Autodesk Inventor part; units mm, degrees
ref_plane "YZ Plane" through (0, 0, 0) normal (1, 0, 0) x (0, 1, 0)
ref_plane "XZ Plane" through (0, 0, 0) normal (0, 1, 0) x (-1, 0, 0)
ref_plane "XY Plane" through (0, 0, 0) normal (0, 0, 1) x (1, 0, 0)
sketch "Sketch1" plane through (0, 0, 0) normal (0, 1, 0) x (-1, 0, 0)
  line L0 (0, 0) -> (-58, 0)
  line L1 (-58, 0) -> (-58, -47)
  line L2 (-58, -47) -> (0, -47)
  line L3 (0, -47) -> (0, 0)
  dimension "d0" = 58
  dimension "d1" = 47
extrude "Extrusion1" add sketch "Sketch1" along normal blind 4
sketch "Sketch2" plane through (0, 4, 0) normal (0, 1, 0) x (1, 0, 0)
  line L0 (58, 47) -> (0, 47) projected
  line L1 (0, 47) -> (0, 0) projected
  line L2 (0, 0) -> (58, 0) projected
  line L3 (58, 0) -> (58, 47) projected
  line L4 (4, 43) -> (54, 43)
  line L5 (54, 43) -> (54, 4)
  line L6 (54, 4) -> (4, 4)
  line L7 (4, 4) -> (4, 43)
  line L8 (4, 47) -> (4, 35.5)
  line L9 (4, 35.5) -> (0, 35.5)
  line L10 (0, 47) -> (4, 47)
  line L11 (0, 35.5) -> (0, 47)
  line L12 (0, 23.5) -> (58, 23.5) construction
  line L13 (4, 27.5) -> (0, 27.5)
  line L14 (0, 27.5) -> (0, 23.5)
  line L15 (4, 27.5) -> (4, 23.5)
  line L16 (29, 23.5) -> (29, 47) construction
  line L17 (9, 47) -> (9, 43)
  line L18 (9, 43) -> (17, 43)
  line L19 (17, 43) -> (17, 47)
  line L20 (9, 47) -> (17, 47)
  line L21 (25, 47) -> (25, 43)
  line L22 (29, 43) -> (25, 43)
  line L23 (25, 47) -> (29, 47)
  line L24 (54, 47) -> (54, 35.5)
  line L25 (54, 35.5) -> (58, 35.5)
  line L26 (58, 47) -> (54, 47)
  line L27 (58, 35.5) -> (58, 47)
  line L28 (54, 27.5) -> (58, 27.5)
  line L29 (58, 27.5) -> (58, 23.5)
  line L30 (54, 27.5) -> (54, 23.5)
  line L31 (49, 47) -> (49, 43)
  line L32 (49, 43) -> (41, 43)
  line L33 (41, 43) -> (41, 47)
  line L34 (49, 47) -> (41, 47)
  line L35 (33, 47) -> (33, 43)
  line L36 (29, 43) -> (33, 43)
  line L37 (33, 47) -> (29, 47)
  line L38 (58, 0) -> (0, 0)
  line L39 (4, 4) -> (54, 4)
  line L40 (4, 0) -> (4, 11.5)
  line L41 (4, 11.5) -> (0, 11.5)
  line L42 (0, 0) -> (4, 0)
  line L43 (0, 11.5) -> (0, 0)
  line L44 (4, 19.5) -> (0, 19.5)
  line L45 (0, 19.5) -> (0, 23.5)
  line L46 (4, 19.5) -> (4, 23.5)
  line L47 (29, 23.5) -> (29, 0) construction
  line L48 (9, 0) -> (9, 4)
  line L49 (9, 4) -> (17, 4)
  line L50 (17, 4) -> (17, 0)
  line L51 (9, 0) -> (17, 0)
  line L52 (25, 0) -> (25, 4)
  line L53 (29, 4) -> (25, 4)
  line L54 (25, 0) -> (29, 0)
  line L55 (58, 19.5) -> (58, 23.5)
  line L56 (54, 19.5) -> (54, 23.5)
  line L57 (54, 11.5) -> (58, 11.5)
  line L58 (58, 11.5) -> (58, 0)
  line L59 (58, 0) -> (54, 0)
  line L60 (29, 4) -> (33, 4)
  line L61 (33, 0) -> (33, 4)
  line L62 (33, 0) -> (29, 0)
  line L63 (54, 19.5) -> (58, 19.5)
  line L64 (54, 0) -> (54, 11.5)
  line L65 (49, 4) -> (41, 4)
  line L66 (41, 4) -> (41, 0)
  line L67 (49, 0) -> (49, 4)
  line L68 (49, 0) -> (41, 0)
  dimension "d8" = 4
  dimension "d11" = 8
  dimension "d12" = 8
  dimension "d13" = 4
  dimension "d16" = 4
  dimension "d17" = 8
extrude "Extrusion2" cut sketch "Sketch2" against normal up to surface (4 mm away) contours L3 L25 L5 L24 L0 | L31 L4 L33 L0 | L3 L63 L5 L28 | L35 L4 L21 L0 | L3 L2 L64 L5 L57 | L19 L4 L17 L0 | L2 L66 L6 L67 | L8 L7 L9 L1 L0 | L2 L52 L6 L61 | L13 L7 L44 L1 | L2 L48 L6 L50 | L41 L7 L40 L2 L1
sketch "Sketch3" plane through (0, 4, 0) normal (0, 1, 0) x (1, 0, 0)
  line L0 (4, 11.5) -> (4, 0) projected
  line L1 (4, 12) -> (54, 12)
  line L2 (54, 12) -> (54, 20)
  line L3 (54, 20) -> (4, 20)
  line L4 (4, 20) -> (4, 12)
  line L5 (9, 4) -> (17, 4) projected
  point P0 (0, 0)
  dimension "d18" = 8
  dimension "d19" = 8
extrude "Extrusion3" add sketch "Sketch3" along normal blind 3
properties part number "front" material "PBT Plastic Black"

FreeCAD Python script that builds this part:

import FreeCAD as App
import Part
import Sketcher

V = App.Vector
Q = App.Units.Quantity

doc = App.newDocument("Part")
body = doc.addObject("PartDesign::Body", "Body")

sketch1 = body.newObject("Sketcher::SketchObject", "Sketch")
sketch1.AttachmentSupport = (doc.getObject("XZ_Plane"), [""])
sketch1.MapMode = "FlatFace"
sketch1.addGeometry([
    Part.LineSegment(V(0, -47, 0), V(0, 0, 0)),
    Part.LineSegment(V(0, 0, 0), V(58, 0, 0)),
    Part.LineSegment(V(58, 0, 0), V(58, -47, 0)),
    Part.LineSegment(V(58, -47, 0), V(0, -47, 0)),
], False)
sketch1.addConstraint([
    Sketcher.Constraint("Coincident", 0, 2, 1, 1),
    Sketcher.Constraint("Coincident", 1, 2, 2, 1),
    Sketcher.Constraint("Coincident", 2, 2, 3, 1),
    Sketcher.Constraint("Coincident", 3, 2, 0, 1),
    Sketcher.Constraint("Vertical", 0),
    Sketcher.Constraint("Horizontal", 1),
    Sketcher.Constraint("Vertical", 2),
    Sketcher.Constraint("Horizontal", 3),
    Sketcher.Constraint("Coincident", 0, 2, -1, 1),
    Sketcher.Constraint("DistanceX", 1, 1, 1, 2, Q("58 mm")),
    Sketcher.Constraint("DistanceY", 0, 1, 0, 2, Q("47 mm")),
])
pad1 = body.newObject("PartDesign::Pad", "Pad")
pad1.Profile = sketch1
pad1.Length = 4
pad1.Reversed = True

sketch2 = body.newObject("Sketcher::SketchObject", "Sketch001")
sketch2.AttachmentSupport = (doc.getObject("XZ_Plane"), [""])
sketch2.MapMode = "FlatFace"
sketch2.AttachmentOffset = App.Placement(V(0, 0, -4), App.Rotation())
sketch2.addGeometry([
    Part.LineSegment(V(58, -35.5, 0), V(58, -47, 0)),
    Part.LineSegment(V(58, -47, 0), V(54, -47, 0)),
    Part.LineSegment(V(54, -47, 0), V(54, -35.5, 0)),
    Part.LineSegment(V(54, -35.5, 0), V(58, -35.5, 0)),
    Part.LineSegment(V(49, -43, 0), V(49, -47, 0)),
    Part.LineSegment(V(49, -47, 0), V(41, -47, 0)),
    Part.LineSegment(V(41, -47, 0), V(41, -43, 0)),
    Part.LineSegment(V(41, -43, 0), V(49, -43, 0)),
    Part.LineSegment(V(58, -19.5, 0), V(58, -27.5, 0)),
    Part.LineSegment(V(58, -27.5, 0), V(54, -27.5, 0)),
    Part.LineSegment(V(54, -27.5, 0), V(54, -19.5, 0)),
    Part.LineSegment(V(54, -19.5, 0), V(58, -19.5, 0)),
    Part.LineSegment(V(33, -43, 0), V(33, -47, 0)),
    Part.LineSegment(V(33, -47, 0), V(25, -47, 0)),
    Part.LineSegment(V(25, -47, 0), V(25, -43, 0)),
    Part.LineSegment(V(25, -43, 0), V(33, -43, 0)),
    Part.LineSegment(V(58, 0, 0), V(58, -11.5, 0)),
    Part.LineSegment(V(58, -11.5, 0), V(54, -11.5, 0)),
    Part.LineSegment(V(54, -11.5, 0), V(54, 0, 0)),
    Part.LineSegment(V(54, 0, 0), V(58, 0, 0)),
    Part.LineSegment(V(17, -43, 0), V(17, -47, 0)),
    Part.LineSegment(V(17, -47, 0), V(9, -47, 0)),
    Part.LineSegment(V(9, -47, 0), V(9, -43, 0)),
    Part.LineSegment(V(9, -43, 0), V(17, -43, 0)),
    Part.LineSegment(V(41, 0, 0), V(49, 0, 0)),
    Part.LineSegment(V(49, 0, 0), V(49, -4, 0)),
    Part.LineSegment(V(49, -4, 0), V(41, -4, 0)),
    Part.LineSegment(V(41, -4, 0), V(41, 0, 0)),
    Part.LineSegment(V(4, -35.5, 0), V(4, -47, 0)),
    Part.LineSegment(V(4, -47, 0), V(0, -47, 0)),
    Part.LineSegment(V(0, -47, 0), V(0, -35.5, 0)),
    Part.LineSegment(V(0, -35.5, 0), V(4, -35.5, 0)),
    Part.LineSegment(V(25, 0, 0), V(33, 0, 0)),
    Part.LineSegment(V(33, 0, 0), V(33, -4, 0)),
    Part.LineSegment(V(33, -4, 0), V(25, -4, 0)),
    Part.LineSegment(V(25, -4, 0), V(25, 0, 0)),
    Part.LineSegment(V(4, -27.5, 0), V(0, -27.5, 0)),
    Part.LineSegment(V(0, -27.5, 0), V(0, -19.5, 0)),
    Part.LineSegment(V(0, -19.5, 0), V(4, -19.5, 0)),
    Part.LineSegment(V(4, -19.5, 0), V(4, -27.5, 0)),
    Part.LineSegment(V(9, 0, 0), V(17, 0, 0)),
    Part.LineSegment(V(17, 0, 0), V(17, -4, 0)),
    Part.LineSegment(V(17, -4, 0), V(9, -4, 0)),
    Part.LineSegment(V(9, -4, 0), V(9, 0, 0)),
    Part.LineSegment(V(4, -11.5, 0), V(0, -11.5, 0)),
    Part.LineSegment(V(0, -11.5, 0), V(0, 0, 0)),
    Part.LineSegment(V(0, 0, 0), V(4, 0, 0)),
    Part.LineSegment(V(4, 0, 0), V(4, -11.5, 0)),
], False)
sketch2.addConstraint([
    Sketcher.Constraint("Coincident", 0, 2, 1, 1),
    Sketcher.Constraint("Coincident", 1, 2, 2, 1),
    Sketcher.Constraint("Coincident", 2, 2, 3, 1),
    Sketcher.Constraint("Coincident", 3, 2, 0, 1),
    Sketcher.Constraint("Coincident", 4, 2, 5, 1),
    Sketcher.Constraint("Coincident", 5, 2, 6, 1),
    Sketcher.Constraint("Coincident", 6, 2, 7, 1),
    Sketcher.Constraint("Coincident", 7, 2, 4, 1),
    Sketcher.Constraint("Coincident", 8, 2, 9, 1),
    Sketcher.Constraint("Coincident", 9, 2, 10, 1),
    Sketcher.Constraint("Coincident", 10, 2, 11, 1),
    Sketcher.Constraint("Coincident", 11, 2, 8, 1),
    Sketcher.Constraint("Coincident", 12, 2, 13, 1),
    Sketcher.Constraint("Coincident", 13, 2, 14, 1),
    Sketcher.Constraint("Coincident", 14, 2, 15, 1),
    Sketcher.Constraint("Coincident", 15, 2, 12, 1),
    Sketcher.Constraint("Coincident", 16, 2, 17, 1),
    Sketcher.Constraint("Coincident", 17, 2, 18, 1),
    Sketcher.Constraint("Coincident", 18, 2, 19, 1),
    Sketcher.Constraint("Coincident", 19, 2, 16, 1),
    Sketcher.Constraint("Coincident", 20, 2, 21, 1),
    Sketcher.Constraint("Coincident", 21, 2, 22, 1),
    Sketcher.Constraint("Coincident", 22, 2, 23, 1),
    Sketcher.Constraint("Coincident", 23, 2, 20, 1),
    Sketcher.Constraint("Coincident", 24, 2, 25, 1),
    Sketcher.Constraint("Coincident", 25, 2, 26, 1),
    Sketcher.Constraint("Coincident", 26, 2, 27, 1),
    Sketcher.Constraint("Coincident", 27, 2, 24, 1),
    Sketcher.Constraint("Coincident", 28, 2, 29, 1),
    Sketcher.Constraint("Coincident", 29, 2, 30, 1),
    Sketcher.Constraint("Coincident", 30, 2, 31, 1),
    Sketcher.Constraint("Coincident", 31, 2, 28, 1),
    Sketcher.Constraint("Coincident", 32, 2, 33, 1),
    Sketcher.Constraint("Coincident", 33, 2, 34, 1),
    Sketcher.Constraint("Coincident", 34, 2, 35, 1),
    Sketcher.Constraint("Coincident", 35, 2, 32, 1),
    Sketcher.Constraint("Coincident", 36, 2, 37, 1),
    Sketcher.Constraint("Coincident", 37, 2, 38, 1),
    Sketcher.Constraint("Coincident", 38, 2, 39, 1),
    Sketcher.Constraint("Coincident", 39, 2, 36, 1),
    Sketcher.Constraint("Coincident", 40, 2, 41, 1),
    Sketcher.Constraint("Coincident", 41, 2, 42, 1),
    Sketcher.Constraint("Coincident", 42, 2, 43, 1),
    Sketcher.Constraint("Coincident", 43, 2, 40, 1),
    Sketcher.Constraint("Coincident", 44, 2, 45, 1),
    Sketcher.Constraint("Coincident", 45, 2, 46, 1),
    Sketcher.Constraint("Coincident", 46, 2, 47, 1),
    Sketcher.Constraint("Coincident", 47, 2, 44, 1),
    Sketcher.Constraint("Vertical", 0),
    Sketcher.Constraint("Horizontal", 1),
    Sketcher.Constraint("Vertical", 2),
    Sketcher.Constraint("Horizontal", 3),
    Sketcher.Constraint("Vertical", 4),
    Sketcher.Constraint("Horizontal", 5),
    Sketcher.Constraint("Vertical", 6),
    Sketcher.Constraint("Horizontal", 7),
    Sketcher.Constraint("Vertical", 8),
    Sketcher.Constraint("Horizontal", 9),
    Sketcher.Constraint("Vertical", 10),
    Sketcher.Constraint("Horizontal", 11),
    Sketcher.Constraint("Vertical", 12),
    Sketcher.Constraint("Horizontal", 13),
    Sketcher.Constraint("Vertical", 14),
    Sketcher.Constraint("Horizontal", 15),
    Sketcher.Constraint("Vertical", 16),
    Sketcher.Constraint("Horizontal", 17),
    Sketcher.Constraint("Vertical", 18),
    Sketcher.Constraint("Horizontal", 19),
    Sketcher.Constraint("Vertical", 20),
    Sketcher.Constraint("Horizontal", 21),
    Sketcher.Constraint("Vertical", 22),
    Sketcher.Constraint("Horizontal", 23),
    Sketcher.Constraint("Horizontal", 24),
    Sketcher.Constraint("Vertical", 25),
    Sketcher.Constraint("Horizontal", 26),
    Sketcher.Constraint("Vertical", 27),
    Sketcher.Constraint("Vertical", 28),
    Sketcher.Constraint("Horizontal", 29),
    Sketcher.Constraint("Vertical", 30),
    Sketcher.Constraint("Horizontal", 31),
    Sketcher.Constraint("Horizontal", 32),
    Sketcher.Constraint("Vertical", 33),
    Sketcher.Constraint("Horizontal", 34),
    Sketcher.Constraint("Vertical", 35),
    Sketcher.Constraint("Horizontal", 36),
    Sketcher.Constraint("Vertical", 37),
    Sketcher.Constraint("Horizontal", 38),
    Sketcher.Constraint("Vertical", 39),
    Sketcher.Constraint("Horizontal", 40),
    Sketcher.Constraint("Vertical", 41),
    Sketcher.Constraint("Horizontal", 42),
    Sketcher.Constraint("Vertical", 43),
    Sketcher.Constraint("Horizontal", 44),
    Sketcher.Constraint("Vertical", 45),
    Sketcher.Constraint("Horizontal", 46),
    Sketcher.Constraint("Vertical", 47),
    Sketcher.Constraint("Coincident", 45, 2, -1, 1),
    Sketcher.Constraint("PointOnObject", 18, 2, -1),
    Sketcher.Constraint("PointOnObject", 24, 2, -1),
    Sketcher.Constraint("PointOnObject", 29, 2, -2),
    Sketcher.Constraint("PointOnObject", 32, 2, -1),
    Sketcher.Constraint("PointOnObject", 36, 2, -2),
    Sketcher.Constraint("PointOnObject", 40, 2, -1),
    Sketcher.Constraint("Horizontal", 1, 2, 4, 2),
    Sketcher.Constraint("Horizontal", 5, 2, 12, 2),
    Sketcher.Constraint("Horizontal", 7, 2, 14, 2),
    Sketcher.Constraint("Horizontal", 13, 2, 20, 2),
    Sketcher.Constraint("Horizontal", 15, 2, 22, 2),
    Sketcher.Constraint("Horizontal", 21, 2, 28, 2),
    Sketcher.Constraint("Horizontal", 3, 2, 30, 2),
    Sketcher.Constraint("Horizontal", 26, 2, 33, 2),
    Sketcher.Constraint("Horizontal", 9, 2, 36, 2),
    Sketcher.Constraint("Horizontal", 11, 2, 37, 2),
    Sketcher.Constraint("Horizontal", 34, 2, 41, 2),
    Sketcher.Constraint("Horizontal", 17, 2, 44, 2),
    Sketcher.Constraint("Vertical", 3, 2, 8, 2),
    Sketcher.Constraint("Vertical", 2, 2, 9, 2),
    Sketcher.Constraint("Vertical", 11, 2, 16, 2),
    Sketcher.Constraint("Vertical", 10, 2, 17, 2),
    Sketcher.Constraint("Vertical", 7, 2, 24, 2),
    Sketcher.Constraint("Vertical", 6, 2, 26, 2),
    Sketcher.Constraint("Vertical", 15, 2, 32, 2),
    Sketcher.Constraint("Vertical", 14, 2, 34, 2),
    Sketcher.Constraint("Vertical", 31, 2, 38, 2),
    Sketcher.Constraint("Vertical", 23, 2, 40, 2),
    Sketcher.Constraint("Vertical", 22, 2, 42, 2),
    Sketcher.Constraint("Vertical", 39, 2, 46, 2),
    Sketcher.Constraint("Equal", 7, 13),
    Sketcher.Constraint("Equal", 15, 21),
    Sketcher.Constraint("Equal", 19, 29),
    Sketcher.Constraint("Equal", 46, 4),
    Sketcher.Constraint("Equal", 42, 8),
    Sketcher.Constraint("Equal", 2, 16),
    Sketcher.Constraint("Equal", 22, 25),
    Sketcher.Constraint("DistanceX", 1, 2, 1, 1, Q("4 mm")),
    Sketcher.Constraint("DistanceX", 5, 2, 5, 1, Q("8 mm")),
    Sketcher.Constraint("DistanceY", 3, 2, 8, 2, Q("8 mm")),
    Sketcher.Constraint("DistanceX", 12, 2, 5, 2, Q("8 mm")),
    Sketcher.Constraint("DistanceY", 11, 2, 16, 2, Q("8 mm")),
    Sketcher.Constraint("DistanceX", 20, 2, 13, 2, Q("8 mm")),
    Sketcher.Constraint("DistanceY", 0, 2, 0, 1, Q("11.5 mm")),
    Sketcher.Constraint("DistanceX", -1, 1, 0, 2, Q("58 mm")),
    Sketcher.Constraint("DistanceX", -1, 1, 4, 2, Q("49 mm")),
])
pocket1 = body.newObject("PartDesign::Pocket", "Pocket")
pocket1.Profile = sketch2
pocket1.Length = 4
pocket1.Reversed = True

sketch3 = body.newObject("Sketcher::SketchObject", "Sketch002")
sketch3.AttachmentSupport = (doc.getObject("XZ_Plane"), [""])
sketch3.MapMode = "FlatFace"
sketch3.AttachmentOffset = App.Placement(V(0, 0, -4), App.Rotation())
sketch3.addGeometry([
    Part.LineSegment(V(4, -20, 0), V(4, -12, 0)),
    Part.LineSegment(V(4, -12, 0), V(54, -12, 0)),
    Part.LineSegment(V(54, -12, 0), V(54, -20, 0)),
    Part.LineSegment(V(54, -20, 0), V(4, -20, 0)),
], False)
sketch3.addConstraint([
    Sketcher.Constraint("Coincident", 0, 2, 1, 1),
    Sketcher.Constraint("Coincident", 1, 2, 2, 1),
    Sketcher.Constraint("Coincident", 2, 2, 3, 1),
    Sketcher.Constraint("Coincident", 3, 2, 0, 1),
    Sketcher.Constraint("Vertical", 0),
    Sketcher.Constraint("Horizontal", 1),
    Sketcher.Constraint("Vertical", 2),
    Sketcher.Constraint("Horizontal", 3),
    Sketcher.Constraint("DistanceY", 0, 1, 0, 2, Q("8 mm")),
    Sketcher.Constraint("DistanceX", 1, 1, 1, 2, Q("50 mm")),
    Sketcher.Constraint("DistanceX", -1, 1, 0, 2, Q("4 mm")),
    Sketcher.Constraint("DistanceY", 0, 2, -1, 1, Q("12 mm")),
])
pad2 = body.newObject("PartDesign::Pad", "Pad001")
pad2.Profile = sketch3
pad2.Length = 3
pad2.Reversed = True

doc.recompute()
